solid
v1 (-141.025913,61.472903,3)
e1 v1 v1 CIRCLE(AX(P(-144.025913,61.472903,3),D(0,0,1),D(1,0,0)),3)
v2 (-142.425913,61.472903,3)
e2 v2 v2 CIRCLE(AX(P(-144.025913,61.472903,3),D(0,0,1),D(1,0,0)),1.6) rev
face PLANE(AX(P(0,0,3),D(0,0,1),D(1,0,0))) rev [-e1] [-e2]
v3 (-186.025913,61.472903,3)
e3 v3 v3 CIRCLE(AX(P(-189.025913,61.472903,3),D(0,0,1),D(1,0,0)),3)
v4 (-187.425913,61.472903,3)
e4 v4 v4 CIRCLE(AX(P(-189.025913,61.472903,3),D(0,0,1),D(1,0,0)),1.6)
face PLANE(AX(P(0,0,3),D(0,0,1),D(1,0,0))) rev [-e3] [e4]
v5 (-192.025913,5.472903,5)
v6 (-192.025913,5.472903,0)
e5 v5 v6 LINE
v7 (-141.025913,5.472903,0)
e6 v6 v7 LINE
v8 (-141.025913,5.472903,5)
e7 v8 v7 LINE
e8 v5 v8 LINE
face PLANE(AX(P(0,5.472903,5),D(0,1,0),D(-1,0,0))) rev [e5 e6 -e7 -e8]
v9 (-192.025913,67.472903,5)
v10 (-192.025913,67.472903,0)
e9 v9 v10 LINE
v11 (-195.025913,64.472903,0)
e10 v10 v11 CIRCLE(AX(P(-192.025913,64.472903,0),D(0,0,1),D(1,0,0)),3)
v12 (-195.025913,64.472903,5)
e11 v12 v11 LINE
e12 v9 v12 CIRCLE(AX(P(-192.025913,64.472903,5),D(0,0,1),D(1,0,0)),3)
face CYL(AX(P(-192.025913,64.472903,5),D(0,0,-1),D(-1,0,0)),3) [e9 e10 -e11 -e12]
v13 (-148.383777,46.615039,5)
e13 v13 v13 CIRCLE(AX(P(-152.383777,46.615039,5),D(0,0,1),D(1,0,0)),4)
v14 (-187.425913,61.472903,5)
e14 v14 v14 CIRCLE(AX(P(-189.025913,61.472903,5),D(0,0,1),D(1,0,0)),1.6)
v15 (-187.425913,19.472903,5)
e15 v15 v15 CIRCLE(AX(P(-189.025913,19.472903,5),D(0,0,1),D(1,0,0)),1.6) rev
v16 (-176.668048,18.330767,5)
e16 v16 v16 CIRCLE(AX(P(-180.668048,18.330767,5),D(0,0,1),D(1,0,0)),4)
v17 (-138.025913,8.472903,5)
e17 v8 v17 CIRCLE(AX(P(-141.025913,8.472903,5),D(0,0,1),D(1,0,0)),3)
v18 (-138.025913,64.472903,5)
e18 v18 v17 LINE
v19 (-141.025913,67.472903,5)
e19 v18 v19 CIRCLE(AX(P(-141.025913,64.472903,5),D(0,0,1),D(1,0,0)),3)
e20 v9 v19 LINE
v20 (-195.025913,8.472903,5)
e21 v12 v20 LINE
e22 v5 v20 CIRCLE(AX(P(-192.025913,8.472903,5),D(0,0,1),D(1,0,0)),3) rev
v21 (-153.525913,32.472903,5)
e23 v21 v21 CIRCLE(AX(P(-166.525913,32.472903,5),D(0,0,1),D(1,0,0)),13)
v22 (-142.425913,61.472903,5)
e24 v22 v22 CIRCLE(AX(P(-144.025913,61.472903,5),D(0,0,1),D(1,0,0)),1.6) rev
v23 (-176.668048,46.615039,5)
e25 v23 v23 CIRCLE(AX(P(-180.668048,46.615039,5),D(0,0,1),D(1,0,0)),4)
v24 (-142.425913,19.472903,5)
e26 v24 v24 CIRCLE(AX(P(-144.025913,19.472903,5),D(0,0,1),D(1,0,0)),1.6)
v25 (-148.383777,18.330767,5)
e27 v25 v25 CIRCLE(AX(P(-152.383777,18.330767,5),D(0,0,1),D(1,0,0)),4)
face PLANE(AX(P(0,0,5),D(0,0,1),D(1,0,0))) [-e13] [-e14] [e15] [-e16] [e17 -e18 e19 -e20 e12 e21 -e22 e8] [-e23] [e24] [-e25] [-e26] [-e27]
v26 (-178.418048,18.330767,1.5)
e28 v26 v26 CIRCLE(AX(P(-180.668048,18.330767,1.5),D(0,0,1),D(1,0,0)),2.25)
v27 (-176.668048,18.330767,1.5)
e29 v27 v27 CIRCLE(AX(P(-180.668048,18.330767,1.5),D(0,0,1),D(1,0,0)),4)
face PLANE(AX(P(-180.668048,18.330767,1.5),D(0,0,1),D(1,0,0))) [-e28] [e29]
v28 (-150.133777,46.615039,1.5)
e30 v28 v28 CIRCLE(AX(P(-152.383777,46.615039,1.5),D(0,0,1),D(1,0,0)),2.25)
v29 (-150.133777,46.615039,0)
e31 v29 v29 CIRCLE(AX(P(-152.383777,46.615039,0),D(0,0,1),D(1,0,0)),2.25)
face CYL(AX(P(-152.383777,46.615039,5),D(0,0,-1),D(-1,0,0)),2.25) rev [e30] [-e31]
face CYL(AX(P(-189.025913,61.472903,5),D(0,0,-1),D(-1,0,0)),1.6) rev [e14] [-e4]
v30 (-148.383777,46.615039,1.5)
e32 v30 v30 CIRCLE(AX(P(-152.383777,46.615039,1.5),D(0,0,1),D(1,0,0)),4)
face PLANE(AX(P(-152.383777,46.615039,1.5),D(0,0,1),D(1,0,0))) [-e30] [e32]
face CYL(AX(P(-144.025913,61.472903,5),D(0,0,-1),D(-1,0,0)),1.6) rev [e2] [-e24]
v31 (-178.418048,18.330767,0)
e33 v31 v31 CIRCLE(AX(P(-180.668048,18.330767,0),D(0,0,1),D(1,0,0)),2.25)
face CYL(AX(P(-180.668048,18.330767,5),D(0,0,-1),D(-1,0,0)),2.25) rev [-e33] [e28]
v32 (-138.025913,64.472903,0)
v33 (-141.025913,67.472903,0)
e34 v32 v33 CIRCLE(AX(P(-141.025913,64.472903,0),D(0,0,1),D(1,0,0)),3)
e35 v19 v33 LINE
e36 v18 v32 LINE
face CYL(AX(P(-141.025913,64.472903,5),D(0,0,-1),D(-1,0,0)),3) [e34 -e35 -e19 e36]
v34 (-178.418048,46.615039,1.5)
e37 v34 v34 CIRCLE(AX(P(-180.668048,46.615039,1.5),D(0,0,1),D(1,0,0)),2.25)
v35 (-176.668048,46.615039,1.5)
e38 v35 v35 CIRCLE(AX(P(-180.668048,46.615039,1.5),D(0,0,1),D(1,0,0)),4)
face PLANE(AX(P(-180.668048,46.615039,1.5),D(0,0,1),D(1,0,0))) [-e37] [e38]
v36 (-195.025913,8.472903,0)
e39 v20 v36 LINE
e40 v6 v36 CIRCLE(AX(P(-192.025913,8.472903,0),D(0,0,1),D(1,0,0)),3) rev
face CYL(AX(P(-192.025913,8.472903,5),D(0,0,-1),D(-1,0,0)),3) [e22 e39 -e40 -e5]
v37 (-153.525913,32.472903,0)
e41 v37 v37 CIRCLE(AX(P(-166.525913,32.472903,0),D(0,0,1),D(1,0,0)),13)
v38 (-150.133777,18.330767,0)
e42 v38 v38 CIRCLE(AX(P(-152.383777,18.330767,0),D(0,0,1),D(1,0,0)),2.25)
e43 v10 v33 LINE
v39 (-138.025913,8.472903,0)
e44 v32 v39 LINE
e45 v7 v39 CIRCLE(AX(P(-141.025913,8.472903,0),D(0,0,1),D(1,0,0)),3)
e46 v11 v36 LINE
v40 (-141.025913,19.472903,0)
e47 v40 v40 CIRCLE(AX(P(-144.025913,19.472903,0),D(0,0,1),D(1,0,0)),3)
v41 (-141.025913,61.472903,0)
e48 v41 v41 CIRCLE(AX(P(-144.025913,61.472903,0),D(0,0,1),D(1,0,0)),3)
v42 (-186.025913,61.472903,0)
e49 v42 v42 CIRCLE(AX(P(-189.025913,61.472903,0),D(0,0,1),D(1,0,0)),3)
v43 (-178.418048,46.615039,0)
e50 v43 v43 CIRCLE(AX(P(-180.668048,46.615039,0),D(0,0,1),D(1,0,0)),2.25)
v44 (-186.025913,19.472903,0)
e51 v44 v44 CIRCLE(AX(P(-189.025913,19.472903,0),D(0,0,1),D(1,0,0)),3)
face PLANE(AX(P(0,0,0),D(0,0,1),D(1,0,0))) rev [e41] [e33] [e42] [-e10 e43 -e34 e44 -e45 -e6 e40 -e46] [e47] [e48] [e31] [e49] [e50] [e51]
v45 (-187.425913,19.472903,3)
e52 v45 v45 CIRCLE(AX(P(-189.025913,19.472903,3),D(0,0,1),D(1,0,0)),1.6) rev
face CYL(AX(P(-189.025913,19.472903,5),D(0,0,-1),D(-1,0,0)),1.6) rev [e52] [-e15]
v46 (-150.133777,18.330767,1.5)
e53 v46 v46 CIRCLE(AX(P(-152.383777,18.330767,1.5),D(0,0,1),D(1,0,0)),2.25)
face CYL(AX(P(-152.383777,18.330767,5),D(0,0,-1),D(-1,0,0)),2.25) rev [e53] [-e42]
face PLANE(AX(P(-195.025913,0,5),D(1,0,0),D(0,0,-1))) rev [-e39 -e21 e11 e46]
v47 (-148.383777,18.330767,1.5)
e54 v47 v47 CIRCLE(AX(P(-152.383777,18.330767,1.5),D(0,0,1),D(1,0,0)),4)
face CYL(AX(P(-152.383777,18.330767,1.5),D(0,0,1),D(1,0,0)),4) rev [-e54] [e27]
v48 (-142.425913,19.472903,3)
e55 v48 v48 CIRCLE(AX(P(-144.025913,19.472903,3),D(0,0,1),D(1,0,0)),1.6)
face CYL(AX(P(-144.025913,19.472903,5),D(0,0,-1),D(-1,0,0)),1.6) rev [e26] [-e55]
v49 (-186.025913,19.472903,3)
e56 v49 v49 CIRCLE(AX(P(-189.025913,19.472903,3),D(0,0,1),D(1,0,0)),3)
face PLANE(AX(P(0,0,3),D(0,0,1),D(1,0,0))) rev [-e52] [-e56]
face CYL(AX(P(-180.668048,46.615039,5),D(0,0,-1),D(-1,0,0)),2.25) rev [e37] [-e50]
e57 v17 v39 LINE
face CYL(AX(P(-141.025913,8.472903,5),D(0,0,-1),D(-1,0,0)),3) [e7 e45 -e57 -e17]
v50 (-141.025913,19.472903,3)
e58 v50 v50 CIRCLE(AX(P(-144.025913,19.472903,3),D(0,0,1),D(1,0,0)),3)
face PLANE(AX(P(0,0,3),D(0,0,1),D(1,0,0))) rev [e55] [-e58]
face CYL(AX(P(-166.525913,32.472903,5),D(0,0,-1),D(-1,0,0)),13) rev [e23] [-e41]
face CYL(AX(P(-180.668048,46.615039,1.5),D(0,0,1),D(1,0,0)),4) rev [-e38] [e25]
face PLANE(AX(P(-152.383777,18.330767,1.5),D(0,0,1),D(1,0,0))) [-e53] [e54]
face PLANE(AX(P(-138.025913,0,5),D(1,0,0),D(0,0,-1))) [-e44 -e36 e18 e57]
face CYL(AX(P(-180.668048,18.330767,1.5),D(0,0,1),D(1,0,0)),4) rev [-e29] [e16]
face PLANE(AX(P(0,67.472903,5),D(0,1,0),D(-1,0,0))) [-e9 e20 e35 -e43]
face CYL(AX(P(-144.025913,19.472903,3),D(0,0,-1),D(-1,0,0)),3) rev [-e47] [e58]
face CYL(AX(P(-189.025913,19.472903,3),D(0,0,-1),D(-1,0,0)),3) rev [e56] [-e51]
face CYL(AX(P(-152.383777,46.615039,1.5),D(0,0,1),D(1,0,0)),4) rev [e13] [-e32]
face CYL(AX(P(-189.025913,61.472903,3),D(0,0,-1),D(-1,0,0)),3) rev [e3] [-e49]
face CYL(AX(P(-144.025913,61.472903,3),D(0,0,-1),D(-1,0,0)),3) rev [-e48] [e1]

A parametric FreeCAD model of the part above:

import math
import FreeCAD as App
import Part
import Sketcher
from FreeCAD import Vector
Q = App.Units.Quantity

doc = App.newDocument("Part")
body = doc.addObject("PartDesign::Body", "Body")

# Sketch on XY plane
sketch1 = body.newObject("Sketcher::SketchObject", "Sketch")
sketch1.AttachmentSupport = (doc.getObject("XY_Plane"), [""])
sketch1.MapMode = "FlatFace"
sketch1.addGeometry(Part.LineSegment(Vector(-141, 67.5, 0), Vector(-192, 67.5, 0)), False)
sketch1.addGeometry(Part.ArcOfCircle(Part.Circle(Vector(-192, 64.5, 0), Vector(0, 0, 1), 3), math.radians(90), math.radians(180)), False)
sketch1.addGeometry(Part.LineSegment(Vector(-195, 64.5, 0), Vector(-195, 8.5, 0)), False)
sketch1.addGeometry(Part.ArcOfCircle(Part.Circle(Vector(-192, 8.5, 0), Vector(0, 0, 1), 3), math.radians(180), math.radians(270)), False)
sketch1.addGeometry(Part.LineSegment(Vector(-192, 5.5, 0), Vector(-141, 5.5, 0)), False)
sketch1.addGeometry(Part.ArcOfCircle(Part.Circle(Vector(-141, 8.5, 0), Vector(0, 0, 1), 3), math.radians(-90), math.radians(0)), False)
sketch1.addGeometry(Part.LineSegment(Vector(-138, 8.5, 0), Vector(-138, 64.5, 0)), False)
sketch1.addGeometry(Part.ArcOfCircle(Part.Circle(Vector(-141, 64.5, 0), Vector(0, 0, 1), 3), math.radians(0), math.radians(90)), False)
sketch1.addGeometry(Part.Circle(Vector(-144, 19.5, 0), Vector(0, 0, 1), 1.6), False)
sketch1.addGeometry(Part.Circle(Vector(-152.4, 18.3, 0), Vector(0, 0, 1), 2.2), False)
sketch1.addGeometry(Part.Circle(Vector(-180.7, 18.3, 0), Vector(0, 0, 1), 2.2), False)
sketch1.addGeometry(Part.Circle(Vector(-189, 19.5, 0), Vector(0, 0, 1), 1.6), False)
sketch1.addGeometry(Part.Circle(Vector(-166.5, 32.5, 0), Vector(0, 0, 1), 13), False)
sketch1.addGeometry(Part.Circle(Vector(-152.4, 46.6, 0), Vector(0, 0, 1), 2.2), False)
sketch1.addGeometry(Part.Circle(Vector(-144, 61.5, 0), Vector(0, 0, 1), 1.6), False)
sketch1.addGeometry(Part.Circle(Vector(-180.7, 46.6, 0), Vector(0, 0, 1), 2.2), False)
sketch1.addGeometry(Part.Circle(Vector(-189, 61.5, 0), Vector(0, 0, 1), 1.6), False)
sketch1.addConstraint(Sketcher.Constraint("Tangent", 0, 2, 1, 1))
sketch1.addConstraint(Sketcher.Constraint("Tangent", 1, 2, 2, 1))
sketch1.addConstraint(Sketcher.Constraint("Tangent", 2, 2, 3, 1))
sketch1.addConstraint(Sketcher.Constraint("Tangent", 3, 2, 4, 1))
sketch1.addConstraint(Sketcher.Constraint("Tangent", 4, 2, 5, 1))
sketch1.addConstraint(Sketcher.Constraint("Tangent", 5, 2, 6, 1))
sketch1.addConstraint(Sketcher.Constraint("Tangent", 6, 2, 7, 1))
sketch1.addConstraint(Sketcher.Constraint("Tangent", 7, 2, 0, 1))
sketch1.addConstraint(Sketcher.Constraint("Horizontal", 0))
sketch1.addConstraint(Sketcher.Constraint("Vertical", 2))
sketch1.addConstraint(Sketcher.Constraint("Horizontal", 4))
sketch1.addConstraint(Sketcher.Constraint("Vertical", 6))
sketch1.addConstraint(Sketcher.Constraint("Equal", 1, 3))
sketch1.addConstraint(Sketcher.Constraint("Equal", 3, 5))
sketch1.addConstraint(Sketcher.Constraint("Equal", 5, 7))
sketch1.addConstraint(Sketcher.Constraint("Equal", 9, 10))
sketch1.addConstraint(Sketcher.Constraint("Equal", 8, 11))
sketch1.addConstraint(Sketcher.Constraint("Equal", 10, 13))
sketch1.addConstraint(Sketcher.Constraint("Equal", 11, 14))
sketch1.addConstraint(Sketcher.Constraint("Equal", 13, 15))
sketch1.addConstraint(Sketcher.Constraint("Equal", 14, 16))
sketch1.addConstraint(Sketcher.Constraint("Horizontal", 9, 3, 10, 3))
sketch1.addConstraint(Sketcher.Constraint("Horizontal", 8, 3, 11, 3))
sketch1.addConstraint(Sketcher.Constraint("Horizontal", 13, 3, 15, 3))
sketch1.addConstraint(Sketcher.Constraint("Horizontal", 14, 3, 16, 3))
sketch1.addConstraint(Sketcher.Constraint("Vertical", 9, 3, 13, 3))
sketch1.addConstraint(Sketcher.Constraint("Vertical", 8, 3, 14, 3))
sketch1.addConstraint(Sketcher.Constraint("Vertical", 10, 3, 15, 3))
sketch1.addConstraint(Sketcher.Constraint("Vertical", 11, 3, 16, 3))
sketch1.addConstraint(Sketcher.Constraint("Diameter", 12, Q("26 mm")))
sketch1.addConstraint(Sketcher.Constraint("Radius", 1, Q("3 mm")))
sketch1.addConstraint(Sketcher.Constraint("Diameter", 8, Q("3.2 mm")))
sketch1.addConstraint(Sketcher.Constraint("Diameter", 9, Q("4.5 mm")))
sketch1.addConstraint(Sketcher.Constraint("DistanceX", 0, 2, 0, 1, Q("51 mm")))
sketch1.addConstraint(Sketcher.Constraint("DistanceY", 2, 2, 2, 1, Q("56 mm")))
sketch1.addConstraint(Sketcher.Constraint("DistanceX", 8, 3, 5, 3, Q("3 mm")))
sketch1.addConstraint(Sketcher.Constraint("DistanceY", 5, 3, 8, 3, Q("11 mm")))
sketch1.addConstraint(Sketcher.Constraint("DistanceX", 3, 3, 11, 3, Q("3 mm")))
sketch1.addConstraint(Sketcher.Constraint("DistanceY", 8, 3, 12, 3, Q("13 mm")))
sketch1.addConstraint(Sketcher.Constraint("DistanceY", 14, 3, 7, 3, Q("3 mm")))
sketch1.addConstraint(Sketcher.Constraint("DistanceX", 12, 3, 8, 3, Q("22.5 mm")))
sketch1.addConstraint(Sketcher.Constraint("DistanceX", 10, 3, -1, 1, Q("180.668048 mm")))
sketch1.addConstraint(Sketcher.Constraint("DistanceY", -1, 1, 13, 3, Q("46.615039 mm")))
sketch1.addConstraint(Sketcher.Constraint("DistanceX", 10, 3, 9, 3, Q("28.284271 mm")))
sketch1.addConstraint(Sketcher.Constraint("DistanceY", 9, 3, 13, 3, Q("28.284271 mm")))
sketch1.addConstraint(Sketcher.Constraint("DistanceX", 1, 3, -1, 1, Q("192.025913 mm")))
sketch1.addConstraint(Sketcher.Constraint("DistanceY", -1, 1, 1, 3, Q("64.472903 mm")))
pad1 = body.newObject("PartDesign::Pad", "Pad")
pad1.Profile = sketch1
pad1.Length = 5

# Sketch on XY plane
sketch2 = body.newObject("Sketcher::SketchObject", "Sketch001")
sketch2.AttachmentSupport = (doc.getObject("XY_Plane"), [""])
sketch2.MapMode = "FlatFace"
sketch2.addGeometry(Part.ArcOfCircle(Part.Circle(Vector(-189, 61.5, 0), Vector(0, 0, 1), 3), math.radians(0), math.radians(90)), False)
sketch2.addGeometry(Part.ArcOfCircle(Part.Circle(Vector(-189, 61.5, 0), Vector(0, 0, 1), 3), math.radians(90), math.radians(180)), False)
sketch2.addGeometry(Part.ArcOfCircle(Part.Circle(Vector(-189, 61.5, 0), Vector(0, 0, 1), 3), math.radians(180), math.radians(360)), False)
sketch2.addGeometry(Part.Circle(Vector(-189, 61.5, 0), Vector(0, 0, 1), 1.6), False)
sketch2.addGeometry(Part.ArcOfCircle(Part.Circle(Vector(-144, 61.5, 0), Vector(0, 0, 1), 3), math.radians(46), math.radians(360)), False)
sketch2.addGeometry(Part.ArcOfCircle(Part.Circle(Vector(-144, 61.5, 0), Vector(0, 0, 1), 3), math.radians(0), math.radians(46)), False)
sketch2.addGeometry(Part.Circle(Vector(-144, 61.5, 0), Vector(0, 0, 1), 1.6), False)
sketch2.addGeometry(Part.Circle(Vector(-144, 19.5, 0), Vector(0, 0, 1), 3), False)
sketch2.addGeometry(Part.Circle(Vector(-144, 19.5, 0), Vector(0, 0, 1), 1.6), False)
sketch2.addGeometry(Part.Circle(Vector(-189, 19.5, 0), Vector(0, 0, 1), 3), False)
sketch2.addGeometry(Part.Circle(Vector(-189, 19.5, 0), Vector(0, 0, 1), 1.6), False)
sketch2.addConstraint(Sketcher.Constraint("Tangent", 0, 2, 1, 1))
sketch2.addConstraint(Sketcher.Constraint("Tangent", 1, 2, 2, 1))
sketch2.addConstraint(Sketcher.Constraint("Tangent", 2, 2, 0, 1))
sketch2.addConstraint(Sketcher.Constraint("Tangent", 4, 1, 5, 2))
sketch2.addConstraint(Sketcher.Constraint("Coincident", 5, 1, 4, 2))
sketch2.addConstraint(Sketcher.Constraint("Coincident", 3, 3, 0, 3))
sketch2.addConstraint(Sketcher.Constraint("Coincident", 6, 3, 4, 3))
sketch2.addConstraint(Sketcher.Constraint("Coincident", 8, 3, 7, 3))
sketch2.addConstraint(Sketcher.Constraint("Coincident", 10, 3, 9, 3))
sketch2.addConstraint(Sketcher.Constraint("Equal", 2, 4))
sketch2.addConstraint(Sketcher.Constraint("Equal", 3, 6))
sketch2.addConstraint(Sketcher.Constraint("Equal", 5, 7))
sketch2.addConstraint(Sketcher.Constraint("Equal", 6, 8))
sketch2.addConstraint(Sketcher.Constraint("Equal", 7, 9))
sketch2.addConstraint(Sketcher.Constraint("Equal", 8, 10))
sketch2.addConstraint(Sketcher.Constraint("Horizontal", 3, 3, 4, 3))
sketch2.addConstraint(Sketcher.Constraint("Horizontal", 8, 3, 9, 3))
sketch2.addConstraint(Sketcher.Constraint("Horizontal", 6, 3, 1, 2))
sketch2.addConstraint(Sketcher.Constraint("Horizontal", 1, 2, 2, 2))
sketch2.addConstraint(Sketcher.Constraint("Horizontal", 2, 2, 5, 1))
sketch2.addConstraint(Sketcher.Constraint("Vertical", 6, 3, 7, 3))
sketch2.addConstraint(Sketcher.Constraint("Vertical", 3, 3, 9, 3))
sketch2.addConstraint(Sketcher.Constraint("Vertical", 10, 3, 0, 2))
sketch2.addConstraint(Sketcher.Constraint("Diameter", 7, Q("6 mm")))
sketch2.addConstraint(Sketcher.Constraint("Diameter", 3, Q("3.2 mm")))
sketch2.addConstraint(Sketcher.Constraint("DistanceX", 0, 3, 4, 3, Q("45 mm")))
sketch2.addConstraint(Sketcher.Constraint("DistanceY", 7, 3, 4, 3, Q("42 mm")))
sketch2.addConstraint(Sketcher.Constraint("DistanceY", 6, 3, 4, 1, Q("2.147731 mm")))
sketch2.addConstraint(Sketcher.Constraint("DistanceX", 0, 3, -1, 1, Q("189.025913 mm")))
sketch2.addConstraint(Sketcher.Constraint("DistanceY", -1, 1, 0, 3, Q("61.472903 mm")))
pocket1 = body.newObject("PartDesign::Pocket", "Pocket")
pocket1.Profile = sketch2
pocket1.Length = 3
pocket1.Reversed = True

# Sketch on XY plane
sketch3 = body.newObject("Sketcher::SketchObject", "Sketch002")
sketch3.AttachmentSupport = (doc.getObject("XY_Plane"), [""])
sketch3.MapMode = "FlatFace"
sketch3.AttachmentOffset = App.Placement(Vector(0, 0, 5), App.Rotation())
sketch3.addGeometry(Part.Circle(Vector(-180.7, 46.6, 0), Vector(0, 0, 1), 4), False)
sketch3.addGeometry(Part.Circle(Vector(-152.4, 46.6, 0), Vector(0, 0, 1), 4), False)
sketch3.addGeometry(Part.Circle(Vector(-152.4, 18.3, 0), Vector(0, 0, 1), 4), False)
sketch3.addGeometry(Part.Circle(Vector(-180.7, 18.3, 0), Vector(0, 0, 1), 4), False)
sketch3.addConstraint(Sketcher.Constraint("Equal", 0, 1))
sketch3.addConstraint(Sketcher.Constraint("Equal", 1, 2))
sketch3.addConstraint(Sketcher.Constraint("Equal", 2, 3))
sketch3.addConstraint(Sketcher.Constraint("Horizontal", 0, 3, 1, 3))
sketch3.addConstraint(Sketcher.Constraint("Horizontal", 2, 3, 3, 3))
sketch3.addConstraint(Sketcher.Constraint("Vertical", 1, 3, 2, 3))
sketch3.addConstraint(Sketcher.Constraint("Vertical", 0, 3, 3, 3))
sketch3.addConstraint(Sketcher.Constraint("Diameter", 0, Q("8 mm")))
sketch3.addConstraint(Sketcher.Constraint("DistanceX", 0, 3, -1, 1, Q("180.668048 mm")))
sketch3.addConstraint(Sketcher.Constraint("DistanceY", -1, 1, 0, 3, Q("46.615039 mm")))
sketch3.addConstraint(Sketcher.Constraint("DistanceX", 0, 3, 1, 3, Q("28.284271 mm")))
sketch3.addConstraint(Sketcher.Constraint("DistanceY", 2, 3, 1, 3, Q("28.284271 mm")))
pocket2 = body.newObject("PartDesign::Pocket", "Pocket001")
pocket2.Profile = sketch3
pocket2.Length = 3.5

doc.recompute()
